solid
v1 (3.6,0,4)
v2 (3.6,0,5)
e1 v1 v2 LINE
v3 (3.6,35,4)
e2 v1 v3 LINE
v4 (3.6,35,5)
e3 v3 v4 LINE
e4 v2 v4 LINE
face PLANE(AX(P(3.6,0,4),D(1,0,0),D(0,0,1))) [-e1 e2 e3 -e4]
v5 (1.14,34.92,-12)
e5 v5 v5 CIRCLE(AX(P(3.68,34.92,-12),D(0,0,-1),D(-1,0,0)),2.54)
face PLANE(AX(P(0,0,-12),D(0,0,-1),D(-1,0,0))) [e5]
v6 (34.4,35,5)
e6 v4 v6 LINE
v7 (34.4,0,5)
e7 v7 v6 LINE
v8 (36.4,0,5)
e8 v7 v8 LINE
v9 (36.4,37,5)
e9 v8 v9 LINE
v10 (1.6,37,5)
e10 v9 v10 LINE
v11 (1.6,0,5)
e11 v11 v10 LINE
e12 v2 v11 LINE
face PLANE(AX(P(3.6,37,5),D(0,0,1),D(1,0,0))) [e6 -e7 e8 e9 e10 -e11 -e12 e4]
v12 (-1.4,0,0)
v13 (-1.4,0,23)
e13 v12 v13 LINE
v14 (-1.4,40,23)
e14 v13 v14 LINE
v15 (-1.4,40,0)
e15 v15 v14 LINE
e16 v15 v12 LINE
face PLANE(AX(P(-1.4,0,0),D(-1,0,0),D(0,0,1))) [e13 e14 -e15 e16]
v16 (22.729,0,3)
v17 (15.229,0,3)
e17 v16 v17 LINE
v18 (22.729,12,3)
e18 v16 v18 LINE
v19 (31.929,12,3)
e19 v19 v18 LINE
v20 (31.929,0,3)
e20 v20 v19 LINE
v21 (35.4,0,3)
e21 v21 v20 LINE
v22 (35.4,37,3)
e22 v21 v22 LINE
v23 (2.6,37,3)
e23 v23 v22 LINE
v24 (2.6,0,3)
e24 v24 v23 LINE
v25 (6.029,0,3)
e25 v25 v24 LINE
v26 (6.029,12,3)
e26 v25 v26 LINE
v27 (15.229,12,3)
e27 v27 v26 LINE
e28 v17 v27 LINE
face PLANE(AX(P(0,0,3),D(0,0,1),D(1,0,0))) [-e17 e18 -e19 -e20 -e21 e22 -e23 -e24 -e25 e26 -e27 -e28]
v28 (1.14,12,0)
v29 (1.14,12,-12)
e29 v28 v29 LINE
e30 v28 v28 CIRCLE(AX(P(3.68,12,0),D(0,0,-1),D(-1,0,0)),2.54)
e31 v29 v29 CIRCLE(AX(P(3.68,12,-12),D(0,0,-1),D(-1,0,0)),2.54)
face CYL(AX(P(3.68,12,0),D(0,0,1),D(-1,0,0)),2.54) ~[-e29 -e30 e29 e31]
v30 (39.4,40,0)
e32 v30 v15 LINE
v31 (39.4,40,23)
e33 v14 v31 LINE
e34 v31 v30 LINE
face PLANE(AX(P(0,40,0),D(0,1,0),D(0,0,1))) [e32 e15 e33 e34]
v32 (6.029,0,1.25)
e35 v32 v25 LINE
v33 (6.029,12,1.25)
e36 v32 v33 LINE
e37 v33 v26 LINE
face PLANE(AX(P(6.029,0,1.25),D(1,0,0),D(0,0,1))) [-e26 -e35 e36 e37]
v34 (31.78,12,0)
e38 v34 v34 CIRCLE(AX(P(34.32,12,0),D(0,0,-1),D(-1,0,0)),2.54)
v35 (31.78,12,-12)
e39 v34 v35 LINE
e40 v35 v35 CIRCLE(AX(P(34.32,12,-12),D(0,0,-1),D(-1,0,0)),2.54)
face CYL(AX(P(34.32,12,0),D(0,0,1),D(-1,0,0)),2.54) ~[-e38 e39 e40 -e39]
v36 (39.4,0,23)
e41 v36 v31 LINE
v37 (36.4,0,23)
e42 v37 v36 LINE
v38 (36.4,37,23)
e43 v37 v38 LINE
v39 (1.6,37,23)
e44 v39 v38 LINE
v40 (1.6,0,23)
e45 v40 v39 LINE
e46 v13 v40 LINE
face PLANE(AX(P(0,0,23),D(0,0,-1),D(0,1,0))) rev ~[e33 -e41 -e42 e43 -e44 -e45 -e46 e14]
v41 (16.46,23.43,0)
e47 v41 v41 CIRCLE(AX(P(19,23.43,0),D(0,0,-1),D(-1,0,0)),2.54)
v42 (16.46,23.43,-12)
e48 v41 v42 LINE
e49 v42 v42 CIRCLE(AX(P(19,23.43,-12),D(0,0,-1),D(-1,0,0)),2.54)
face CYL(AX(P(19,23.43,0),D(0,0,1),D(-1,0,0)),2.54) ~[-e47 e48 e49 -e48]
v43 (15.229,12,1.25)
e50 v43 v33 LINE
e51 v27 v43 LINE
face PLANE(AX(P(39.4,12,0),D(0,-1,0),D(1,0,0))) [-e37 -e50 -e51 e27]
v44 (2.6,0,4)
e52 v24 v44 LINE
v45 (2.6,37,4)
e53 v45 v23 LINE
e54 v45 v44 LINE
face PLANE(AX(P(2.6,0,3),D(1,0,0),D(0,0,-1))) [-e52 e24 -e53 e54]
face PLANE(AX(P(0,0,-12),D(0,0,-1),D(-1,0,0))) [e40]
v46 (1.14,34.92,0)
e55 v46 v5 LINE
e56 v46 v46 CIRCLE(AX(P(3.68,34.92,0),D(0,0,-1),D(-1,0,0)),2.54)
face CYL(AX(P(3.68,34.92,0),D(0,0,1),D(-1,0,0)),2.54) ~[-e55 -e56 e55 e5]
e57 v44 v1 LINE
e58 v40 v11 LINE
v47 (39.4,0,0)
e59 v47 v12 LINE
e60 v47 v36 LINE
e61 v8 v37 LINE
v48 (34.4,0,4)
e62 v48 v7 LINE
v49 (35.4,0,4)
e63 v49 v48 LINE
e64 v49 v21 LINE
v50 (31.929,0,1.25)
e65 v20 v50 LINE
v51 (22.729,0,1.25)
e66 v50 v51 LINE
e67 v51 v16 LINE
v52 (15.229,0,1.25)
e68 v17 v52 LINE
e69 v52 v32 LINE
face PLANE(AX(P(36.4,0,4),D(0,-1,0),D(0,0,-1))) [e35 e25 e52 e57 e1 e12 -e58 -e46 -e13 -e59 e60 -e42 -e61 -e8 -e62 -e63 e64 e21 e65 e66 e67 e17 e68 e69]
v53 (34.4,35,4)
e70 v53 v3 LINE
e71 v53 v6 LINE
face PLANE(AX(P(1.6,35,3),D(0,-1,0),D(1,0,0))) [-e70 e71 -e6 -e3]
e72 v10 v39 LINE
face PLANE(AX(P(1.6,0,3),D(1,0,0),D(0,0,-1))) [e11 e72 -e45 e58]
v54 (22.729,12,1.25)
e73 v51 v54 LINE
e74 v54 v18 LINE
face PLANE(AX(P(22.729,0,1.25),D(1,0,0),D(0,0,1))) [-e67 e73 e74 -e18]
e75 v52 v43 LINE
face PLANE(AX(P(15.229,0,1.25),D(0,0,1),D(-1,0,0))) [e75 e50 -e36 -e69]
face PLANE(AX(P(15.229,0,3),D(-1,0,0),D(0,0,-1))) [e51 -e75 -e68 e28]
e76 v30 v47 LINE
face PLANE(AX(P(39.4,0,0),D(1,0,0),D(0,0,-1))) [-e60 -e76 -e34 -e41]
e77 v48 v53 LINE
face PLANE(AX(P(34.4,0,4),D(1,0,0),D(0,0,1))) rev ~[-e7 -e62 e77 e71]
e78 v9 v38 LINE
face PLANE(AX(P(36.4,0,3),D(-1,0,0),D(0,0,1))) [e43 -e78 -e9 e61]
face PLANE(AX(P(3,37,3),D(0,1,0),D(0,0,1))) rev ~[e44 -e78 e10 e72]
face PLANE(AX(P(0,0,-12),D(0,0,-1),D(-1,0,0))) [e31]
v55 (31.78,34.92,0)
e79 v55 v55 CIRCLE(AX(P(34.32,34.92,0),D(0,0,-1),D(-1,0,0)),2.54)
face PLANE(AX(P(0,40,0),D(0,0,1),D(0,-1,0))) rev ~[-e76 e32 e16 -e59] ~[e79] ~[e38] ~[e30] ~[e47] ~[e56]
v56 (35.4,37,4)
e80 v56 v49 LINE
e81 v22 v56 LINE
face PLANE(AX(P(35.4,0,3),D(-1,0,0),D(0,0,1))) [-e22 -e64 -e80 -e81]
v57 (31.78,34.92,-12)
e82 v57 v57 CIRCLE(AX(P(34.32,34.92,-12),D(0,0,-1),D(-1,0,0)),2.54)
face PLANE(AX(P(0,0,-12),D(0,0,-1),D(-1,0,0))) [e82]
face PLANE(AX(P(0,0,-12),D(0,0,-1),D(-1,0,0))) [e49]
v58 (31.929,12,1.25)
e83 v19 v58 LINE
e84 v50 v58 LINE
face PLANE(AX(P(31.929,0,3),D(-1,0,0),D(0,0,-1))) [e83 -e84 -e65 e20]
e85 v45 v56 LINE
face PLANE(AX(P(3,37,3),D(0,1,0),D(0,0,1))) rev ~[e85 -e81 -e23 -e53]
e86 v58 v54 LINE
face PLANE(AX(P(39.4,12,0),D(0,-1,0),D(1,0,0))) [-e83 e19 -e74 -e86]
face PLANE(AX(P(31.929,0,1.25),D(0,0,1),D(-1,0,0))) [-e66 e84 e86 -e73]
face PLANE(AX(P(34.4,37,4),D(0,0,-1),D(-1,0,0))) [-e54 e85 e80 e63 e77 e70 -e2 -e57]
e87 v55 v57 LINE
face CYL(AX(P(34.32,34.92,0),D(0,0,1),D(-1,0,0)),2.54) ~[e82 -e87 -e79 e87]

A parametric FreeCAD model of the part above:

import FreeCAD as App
import Part
import Sketcher
Q = App.Units.Quantity


def add_polygon(sketch, points):
    """Adds a closed chain of lines whose ends are joined by coincident constraints."""
    first, n = sketch.GeometryCount, len(points)
    for a, b in zip(points, points[1:] + points[:1]):
        sketch.addGeometry(Part.LineSegment(App.Vector(*a, 0), App.Vector(*b, 0)), False)
    for i in range(n):
        sketch.addConstraint(Sketcher.Constraint("Coincident", first + i, 2, first + (i + 1) % n, 1))

doc = App.newDocument("Part")
body = doc.addObject("PartDesign::Body", "Body")

sketch1 = body.newObject("Sketcher::SketchObject", "Sketch")
sketch1.AttachmentSupport = (doc.getObject("XY_Plane"), [""])
sketch1.MapMode = "FlatFace"
add_polygon(sketch1, [(0, 40), (0, 0), (38, 0), (38, 40)])
sketch1.addConstraint(Sketcher.Constraint("Vertical", 0))
sketch1.addConstraint(Sketcher.Constraint("Horizontal", 1))
sketch1.addConstraint(Sketcher.Constraint("Vertical", 2))
sketch1.addConstraint(Sketcher.Constraint("Horizontal", 3))
sketch1.addConstraint(Sketcher.Constraint("Coincident", 0, 2, -1, 1))
sketch1.addConstraint(Sketcher.Constraint("DistanceX", 1, 1, 1, 2, Q("38 mm")))
sketch1.addConstraint(Sketcher.Constraint("DistanceY", 0, 2, 0, 1, Q("40 mm")))
pad1 = body.newObject("PartDesign::Pad", "Pad")
pad1.Profile = sketch1
pad1.Length = 3

sketch2 = body.newObject("Sketcher::SketchObject", "Sketch001")
sketch2.AttachmentSupport = (doc.getObject("XY_Plane"), [""])
sketch2.MapMode = "FlatFace"
sketch2.AttachmentOffset = App.Placement(App.Vector(0, 0, 3), App.Rotation())
add_polygon(sketch2, [(35, 0), (38, 0), (38, 40), (0, 40), (0, 0), (3, 0), (3, 37), (35, 37)])
sketch2.addConstraint(Sketcher.Constraint("Horizontal", 0))
sketch2.addConstraint(Sketcher.Constraint("Vertical", 1))
sketch2.addConstraint(Sketcher.Constraint("Horizontal", 2))
sketch2.addConstraint(Sketcher.Constraint("Vertical", 3))
sketch2.addConstraint(Sketcher.Constraint("Horizontal", 4))
sketch2.addConstraint(Sketcher.Constraint("Vertical", 5))
sketch2.addConstraint(Sketcher.Constraint("Horizontal", 6))
sketch2.addConstraint(Sketcher.Constraint("Vertical", 7))
sketch2.addConstraint(Sketcher.Constraint("Coincident", 3, 2, -1, 1))
sketch2.addConstraint(Sketcher.Constraint("PointOnObject", 0, 2, -1))
sketch2.addConstraint(Sketcher.Constraint("Equal", 0, 4))
sketch2.addConstraint(Sketcher.Constraint("DistanceX", 0, 1, 0, 2, Q("3 mm")))
sketch2.addConstraint(Sketcher.Constraint("DistanceY", 5, 2, 2, 2, Q("3 mm")))
sketch2.addConstraint(Sketcher.Constraint("DistanceX", 2, 2, 2, 1, Q("38 mm")))
sketch2.addConstraint(Sketcher.Constraint("DistanceY", 1, 1, 1, 2, Q("40 mm")))
pad2 = body.newObject("PartDesign::Pad", "Pad001")
pad2.Profile = sketch2
pad2.Length = 20

sketch3 = body.newObject("Sketcher::SketchObject", "Sketch002")
sketch3.AttachmentSupport = (doc.getObject("YZ_Plane"), [""])
sketch3.MapMode = "FlatFace"
sketch3.AttachmentOffset = App.Placement(App.Vector(0, 0, 38), App.Rotation())
add_polygon(sketch3, [(40, 23), (0, 23), (0, 0), (40, 0)])
sketch3.addConstraint(Sketcher.Constraint("Horizontal", 0))
sketch3.addConstraint(Sketcher.Constraint("Vertical", 1))
sketch3.addConstraint(Sketcher.Constraint("Horizontal", 2))
sketch3.addConstraint(Sketcher.Constraint("Vertical", 3))
sketch3.addConstraint(Sketcher.Constraint("Coincident", 1, 2, -1, 1))
sketch3.addConstraint(Sketcher.Constraint("DistanceX", 0, 2, 0, 1, Q("40 mm")))
sketch3.addConstraint(Sketcher.Constraint("DistanceY", 1, 2, 1, 1, Q("23 mm")))
pad3 = body.newObject("PartDesign::Pad", "Pad002")
pad3.Profile = sketch3
pad3.Length = 1.4

sketch4 = body.newObject("Sketcher::SketchObject", "Sketch003")
sketch4.AttachmentSupport = (doc.getObject("YZ_Plane"), [""])
sketch4.MapMode = "FlatFace"
sketch4.AttachmentOffset = App.Placement(App.Vector(0, 0, 35), App.Rotation())
add_polygon(sketch4, [(37, 23), (37, 3), (0, 3), (0, 23)])
sketch4.addConstraint(Sketcher.Constraint("Vertical", 0))
sketch4.addConstraint(Sketcher.Constraint("Horizontal", 1))
sketch4.addConstraint(Sketcher.Constraint("Vertical", 2))
sketch4.addConstraint(Sketcher.Constraint("Horizontal", 3))
sketch4.addConstraint(Sketcher.Constraint("PointOnObject", 1, 2, -2))
sketch4.addConstraint(Sketcher.Constraint("DistanceX", 1, 2, 1, 1, Q("37 mm")))
sketch4.addConstraint(Sketcher.Constraint("DistanceY", 0, 2, 0, 1, Q("20 mm")))
sketch4.addConstraint(Sketcher.Constraint("DistanceY", -1, 1, 0, 2, Q("3 mm")))
pocket1 = body.newObject("PartDesign::Pocket", "Pocket")
pocket1.Profile = sketch4
pocket1.Length = 1.4
pocket1.Reversed = True

sketch5 = body.newObject("Sketcher::SketchObject", "Sketch004")
sketch5.AttachmentSupport = (doc.getObject("YZ_Plane"), [""])
sketch5.MapMode = "FlatFace"
add_polygon(sketch5, [(40, 23), (40, 0), (0, 0), (0, 23)])
sketch5.addConstraint(Sketcher.Constraint("Vertical", 0))
sketch5.addConstraint(Sketcher.Constraint("Horizontal", 1))
sketch5.addConstraint(Sketcher.Constraint("Vertical", 2))
sketch5.addConstraint(Sketcher.Constraint("Horizontal", 3))
sketch5.addConstraint(Sketcher.Constraint("Coincident", 1, 2, -1, 1))
sketch5.addConstraint(Sketcher.Constraint("DistanceX", 1, 2, 1, 1, Q("40 mm")))
sketch5.addConstraint(Sketcher.Constraint("DistanceY", 0, 2, 0, 1, Q("23 mm")))
pad4 = body.newObject("PartDesign::Pad", "Pad003")
pad4.Profile = sketch5
pad4.Length = 1.4
pad4.Reversed = True

sketch6 = body.newObject("Sketcher::SketchObject", "Sketch005")
sketch6.AttachmentSupport = (doc.getObject("YZ_Plane"), [""])
sketch6.MapMode = "FlatFace"
sketch6.AttachmentOffset = App.Placement(App.Vector(0, 0, 3), App.Rotation())
add_polygon(sketch6, [(0, 3), (37, 3), (37, 23), (0, 23)])
sketch6.addConstraint(Sketcher.Constraint("Horizontal", 0))
sketch6.addConstraint(Sketcher.Constraint("Vertical", 1))
sketch6.addConstraint(Sketcher.Constraint("Horizontal", 2))
sketch6.addConstraint(Sketcher.Constraint("Vertical", 3))
sketch6.addConstraint(Sketcher.Constraint("PointOnObject", 2, 2, -2))
sketch6.addConstraint(Sketcher.Constraint("DistanceX", 0, 1, 0, 2, Q("37 mm")))
sketch6.addConstraint(Sketcher.Constraint("DistanceY", 1, 1, 1, 2, Q("20 mm")))
sketch6.addConstraint(Sketcher.Constraint("DistanceY", -1, 1, 0, 2, Q("3 mm")))
pocket2 = body.newObject("PartDesign::Pocket", "Pocket001")
pocket2.Profile = sketch6
pocket2.Length = 1.4

sketch7 = body.newObject("Sketcher::SketchObject", "Sketch006")
sketch7.AttachmentSupport = (doc.getObject("XZ_Plane"), [""])
sketch7.MapMode = "FlatFace"
add_polygon(sketch7, [(34.4, 4), (36.4, 4), (36.4, 5), (34.4, 5)])
sketch7.addConstraint(Sketcher.Constraint("Horizontal", 0))
sketch7.addConstraint(Sketcher.Constraint("Vertical", 1))
sketch7.addConstraint(Sketcher.Constraint("Horizontal", 2))
sketch7.addConstraint(Sketcher.Constraint("Vertical", 3))
sketch7.addConstraint(Sketcher.Constraint("DistanceX", 0, 1, 0, 2, Q("2 mm")))
sketch7.addConstraint(Sketcher.Constraint("DistanceY", 1, 1, 1, 2, Q("1 mm")))
sketch7.addConstraint(Sketcher.Constraint("DistanceY", -1, 1, 0, 2, Q("4 mm")))
sketch7.addConstraint(Sketcher.Constraint("DistanceX", -1, 1, 0, 2, Q("36.4 mm")))
pad5 = body.newObject("PartDesign::Pad", "Pad004")
pad5.Profile = sketch7
pad5.Length = 37.0078
pad5.Reversed = True

sketch8 = body.newObject("Sketcher::SketchObject", "Sketch007")
sketch8.AttachmentSupport = (doc.getObject("XZ_Plane"), [""])
sketch8.MapMode = "FlatFace"
add_polygon(sketch8, [(1.6, 5), (1.6, 4), (3.6, 4), (3.6, 5)])
sketch8.addConstraint(Sketcher.Constraint("Vertical", 0))
sketch8.addConstraint(Sketcher.Constraint("Horizontal", 1))
sketch8.addConstraint(Sketcher.Constraint("Vertical", 2))
sketch8.addConstraint(Sketcher.Constraint("Horizontal", 3))
sketch8.addConstraint(Sketcher.Constraint("DistanceX", 1, 1, 1, 2, Q("2 mm")))
sketch8.addConstraint(Sketcher.Constraint("DistanceY", 0, 2, 0, 1, Q("1 mm")))
sketch8.addConstraint(Sketcher.Constraint("DistanceY", -1, 1, 0, 2, Q("4 mm")))
sketch8.addConstraint(Sketcher.Constraint("DistanceX", -1, 1, 0, 2, Q("1.6 mm")))
pad6 = body.newObject("PartDesign::Pad", "Pad005")
pad6.Profile = sketch8
pad6.Length = 37.0078
pad6.Reversed = True

sketch9 = body.newObject("Sketcher::SketchObject", "Sketch008")
sketch9.AttachmentSupport = (doc.getObject("XZ_Plane"), [""])
sketch9.MapMode = "FlatFace"
sketch9.AttachmentOffset = App.Placement(App.Vector(0, 0, -37), App.Rotation())
add_polygon(sketch9, [(3.6, 4), (34.4, 4), (34.4, 5), (3.6, 5)])
sketch9.addConstraint(Sketcher.Constraint("Horizontal", 0))
sketch9.addConstraint(Sketcher.Constraint("Vertical", 1))
sketch9.addConstraint(Sketcher.Constraint("Horizontal", 2))
sketch9.addConstraint(Sketcher.Constraint("Vertical", 3))
sketch9.addConstraint(Sketcher.Constraint("DistanceY", 1, 1, 1, 2, Q("1 mm")))
sketch9.addConstraint(Sketcher.Constraint("DistanceX", 0, 1, 0, 2, Q("30.8 mm")))
sketch9.addConstraint(Sketcher.Constraint("DistanceY", -1, 1, 0, 2, Q("4 mm")))
sketch9.addConstraint(Sketcher.Constraint("DistanceX", -1, 1, 0, 2, Q("34.4 mm")))
pad7 = body.newObject("PartDesign::Pad", "Pad006")
pad7.Profile = sketch9
pad7.Length = 2

sketch10 = body.newObject("Sketcher::SketchObject", "Sketch009")
sketch10.AttachmentSupport = (doc.getObject("YZ_Plane"), [""])
sketch10.MapMode = "FlatFace"
sketch10.AttachmentOffset = App.Placement(App.Vector(0, 0, 1.6), App.Rotation())
add_polygon(sketch10, [(37, 3), (37, 4), (0, 4), (0, 3)])
sketch10.addConstraint(Sketcher.Constraint("Vertical", 0))
sketch10.addConstraint(Sketcher.Constraint("Horizontal", 1))
sketch10.addConstraint(Sketcher.Constraint("Vertical", 2))
sketch10.addConstraint(Sketcher.Constraint("Horizontal", 3))
sketch10.addConstraint(Sketcher.Constraint("PointOnObject", 1, 2, -2))
sketch10.addConstraint(Sketcher.Constraint("DistanceX", 1, 2, 1, 1, Q("37 mm")))
sketch10.addConstraint(Sketcher.Constraint("DistanceY", 0, 1, 0, 2, Q("1 mm")))
sketch10.addConstraint(Sketcher.Constraint("DistanceY", -1, 1, 0, 2, Q("4 mm")))
pad8 = body.newObject("PartDesign::Pad", "Pad007")
pad8.Profile = sketch10
pad8.Length = 1

sketch11 = body.newObject("Sketcher::SketchObject", "Sketch010")
sketch11.AttachmentSupport = (doc.getObject("YZ_Plane"), [""])
sketch11.MapMode = "FlatFace"
sketch11.AttachmentOffset = App.Placement(App.Vector(0, 0, 36.4), App.Rotation())
add_polygon(sketch11, [(37, 3), (0, 3), (0, 4), (37, 4)])
sketch11.addConstraint(Sketcher.Constraint("Horizontal", 0))
sketch11.addConstraint(Sketcher.Constraint("Vertical", 1))
sketch11.addConstraint(Sketcher.Constraint("Horizontal", 2))
sketch11.addConstraint(Sketcher.Constraint("Vertical", 3))
sketch11.addConstraint(Sketcher.Constraint("PointOnObject", 0, 2, -2))
sketch11.addConstraint(Sketcher.Constraint("DistanceX", 0, 2, 0, 1, Q("37 mm")))
sketch11.addConstraint(Sketcher.Constraint("DistanceY", 1, 1, 1, 2, Q("1 mm")))
sketch11.addConstraint(Sketcher.Constraint("DistanceY", -1, 1, 0, 2, Q("3 mm")))
pad9 = body.newObject("PartDesign::Pad", "Pad008")
pad9.Profile = sketch11
pad9.Length = 1
pad9.Reversed = True

sketch12 = body.newObject("Sketcher::SketchObject", "Sketch011")
sketch12.AttachmentSupport = (doc.getObject("XZ_Plane"), [""])
sketch12.MapMode = "FlatFace"
add_polygon(sketch12, [(31.9, 1.2), (31.9, 3), (22.7, 3), (22.7, 1.2)])
add_polygon(sketch12, [(15.2, 1.2), (15.2, 3), (6, 3), (6, 1.2)])
sketch12.addConstraint(Sketcher.Constraint("Vertical", 0))
sketch12.addConstraint(Sketcher.Constraint("Horizontal", 1))
sketch12.addConstraint(Sketcher.Constraint("Vertical", 2))
sketch12.addConstraint(Sketcher.Constraint("Horizontal", 3))
sketch12.addConstraint(Sketcher.Constraint("Vertical", 4))
sketch12.addConstraint(Sketcher.Constraint("Horizontal", 5))
sketch12.addConstraint(Sketcher.Constraint("Vertical", 6))
sketch12.addConstraint(Sketcher.Constraint("Horizontal", 7))
sketch12.addConstraint(Sketcher.Constraint("Horizontal", 1, 2, 4, 2))
sketch12.addConstraint(Sketcher.Constraint("Horizontal", 3, 2, 6, 2))
sketch12.addConstraint(Sketcher.Constraint("Equal", 3, 5))
sketch12.addConstraint(Sketcher.Constraint("DistanceX", 1, 2, 1, 1, Q("9.2 mm")))
sketch12.addConstraint(Sketcher.Constraint("DistanceY", 0, 1, 0, 2, Q("1.75 mm")))
sketch12.addConstraint(Sketcher.Constraint("DistanceX", 4, 2, 1, 2, Q("7.5 mm")))
sketch12.addConstraint(Sketcher.Constraint("DistanceY", -1, 1, 0, 2, Q("3 mm")))
sketch12.addConstraint(Sketcher.Constraint("DistanceX", -1, 1, 0, 2, Q("31.929 mm")))
pocket3 = body.newObject("PartDesign::Pocket", "Pocket002")
pocket3.Profile = sketch12
pocket3.Length = 12

sketch13 = body.newObject("Sketcher::SketchObject", "Sketch012")
sketch13.AttachmentSupport = (doc.getObject("XY_Plane"), [""])
sketch13.MapMode = "FlatFace"
sketch13.addGeometry(Part.Circle(App.Vector(3.7, 12, 0), App.Vector(0, 0, 1), 2.5), False)
sketch13.addGeometry(Part.Circle(App.Vector(19, 23.4, 0), App.Vector(0, 0, 1), 2.5), False)
sketch13.addGeometry(Part.Circle(App.Vector(3.7, 34.9, 0), App.Vector(0, 0, 1), 2.5), False)
sketch13.addGeometry(Part.Circle(App.Vector(34.3, 12, 0), App.Vector(0, 0, 1), 2.5), False)
sketch13.addGeometry(Part.Circle(App.Vector(34.3, 34.9, 0), App.Vector(0, 0, 1), 2.5), False)
sketch13.addConstraint(Sketcher.Constraint("Equal", 0, 1))
sketch13.addConstraint(Sketcher.Constraint("Equal", 1, 2))
sketch13.addConstraint(Sketcher.Constraint("Equal", 2, 3))
sketch13.addConstraint(Sketcher.Constraint("Equal", 3, 4))
sketch13.addConstraint(Sketcher.Constraint("Horizontal", 0, 3, 3, 3))
sketch13.addConstraint(Sketcher.Constraint("Horizontal", 2, 3, 4, 3))
sketch13.addConstraint(Sketcher.Constraint("Vertical", 0, 3, 2, 3))
sketch13.addConstraint(Sketcher.Constraint("Vertical", 3, 3, 4, 3))
sketch13.addConstraint(Sketcher.Constraint("Diameter", 0, Q("5.08 mm")))
sketch13.addConstraint(Sketcher.Constraint("DistanceY", -1, 1, 0, 3, Q("12 mm")))
sketch13.addConstraint(Sketcher.Constraint("DistanceY", 0, 3, 1, 3, Q("11.43 mm")))
sketch13.addConstraint(Sketcher.Constraint("DistanceX", -1, 1, 1, 3, Q("19 mm")))
sketch13.addConstraint(Sketcher.Constraint("DistanceX", -1, 1, 0, 3, Q("3.68 mm")))
sketch13.addConstraint(Sketcher.Constraint("DistanceY", -1, 1, 2, 3, Q("34.92 mm")))
sketch13.addConstraint(Sketcher.Constraint("DistanceX", -1, 1, 3, 3, Q("34.32 mm")))
pad10 = body.newObject("PartDesign::Pad", "Pad009")
pad10.Profile = sketch13
pad10.Length = 12
pad10.Reversed = True

doc.recompute()
